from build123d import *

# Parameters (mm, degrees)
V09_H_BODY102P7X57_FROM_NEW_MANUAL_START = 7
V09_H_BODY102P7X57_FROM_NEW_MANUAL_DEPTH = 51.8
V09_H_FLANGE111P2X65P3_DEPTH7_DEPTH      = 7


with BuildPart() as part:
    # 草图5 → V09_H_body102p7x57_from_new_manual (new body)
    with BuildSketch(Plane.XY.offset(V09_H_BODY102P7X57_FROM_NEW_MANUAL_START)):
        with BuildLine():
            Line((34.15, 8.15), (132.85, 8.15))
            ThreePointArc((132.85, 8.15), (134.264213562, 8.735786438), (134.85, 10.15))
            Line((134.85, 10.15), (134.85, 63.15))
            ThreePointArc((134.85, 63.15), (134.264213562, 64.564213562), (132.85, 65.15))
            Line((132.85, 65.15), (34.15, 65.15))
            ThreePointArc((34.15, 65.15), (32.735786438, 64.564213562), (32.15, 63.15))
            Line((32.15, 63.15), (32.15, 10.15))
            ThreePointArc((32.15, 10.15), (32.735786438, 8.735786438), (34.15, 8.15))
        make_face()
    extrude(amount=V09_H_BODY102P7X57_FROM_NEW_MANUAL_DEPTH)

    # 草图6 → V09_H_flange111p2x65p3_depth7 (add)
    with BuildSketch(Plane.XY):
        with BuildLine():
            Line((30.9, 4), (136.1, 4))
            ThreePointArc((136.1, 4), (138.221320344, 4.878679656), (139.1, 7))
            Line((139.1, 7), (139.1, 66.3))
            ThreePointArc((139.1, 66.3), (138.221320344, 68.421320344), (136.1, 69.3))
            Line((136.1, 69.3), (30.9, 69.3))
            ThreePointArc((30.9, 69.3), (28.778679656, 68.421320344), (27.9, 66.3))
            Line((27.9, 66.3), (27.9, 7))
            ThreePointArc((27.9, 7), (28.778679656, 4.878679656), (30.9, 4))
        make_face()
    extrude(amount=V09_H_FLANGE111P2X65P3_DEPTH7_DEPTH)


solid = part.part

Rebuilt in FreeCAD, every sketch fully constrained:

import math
import FreeCAD as App
import Part
import Sketcher

V = App.Vector
Q = App.Units.Quantity

doc = App.newDocument("Part")
body = doc.addObject("PartDesign::Body", "Body")

sketch1 = body.newObject("Sketcher::SketchObject", "Sketch")
sketch1.AttachmentSupport = (doc.getObject("XY_Plane"), [""])
sketch1.MapMode = "FlatFace"
sketch1.AttachmentOffset = App.Placement(V(0, 0, 7), App.Rotation())
sketch1.addGeometry(Part.LineSegment(V(34.15, 8.15, 0), V(132.85, 8.15, 0)), False)
sketch1.addGeometry(Part.ArcOfCircle(Part.Circle(V(132.85, 10.15, 0), V(0, 0, 1), 2), math.radians(-90), math.radians(0)), False)
sketch1.addGeometry(Part.LineSegment(V(134.85, 10.15, 0), V(134.85, 63.15, 0)), False)
sketch1.addGeometry(Part.ArcOfCircle(Part.Circle(V(132.85, 63.15, 0), V(0, 0, 1), 2), math.radians(0), math.radians(90)), False)
sketch1.addGeometry(Part.LineSegment(V(132.85, 65.15, 0), V(34.15, 65.15, 0)), False)
sketch1.addGeometry(Part.ArcOfCircle(Part.Circle(V(34.15, 63.15, 0), V(0, 0, 1), 2), math.radians(90), math.radians(180)), False)
sketch1.addGeometry(Part.LineSegment(V(32.15, 63.15, 0), V(32.15, 10.15, 0)), False)
sketch1.addGeometry(Part.ArcOfCircle(Part.Circle(V(34.15, 10.15, 0), V(0, 0, 1), 2), math.radians(-180), math.radians(-90)), False)
sketch1.addConstraint(Sketcher.Constraint("Tangent", 0, 2, 1, 1))
sketch1.addConstraint(Sketcher.Constraint("Tangent", 1, 2, 2, 1))
sketch1.addConstraint(Sketcher.Constraint("Tangent", 2, 2, 3, 1))
sketch1.addConstraint(Sketcher.Constraint("Tangent", 3, 2, 4, 1))
sketch1.addConstraint(Sketcher.Constraint("Tangent", 4, 2, 5, 1))
sketch1.addConstraint(Sketcher.Constraint("Tangent", 5, 2, 6, 1))
sketch1.addConstraint(Sketcher.Constraint("Tangent", 6, 2, 7, 1))
sketch1.addConstraint(Sketcher.Constraint("Tangent", 7, 2, 0, 1))
sketch1.addConstraint(Sketcher.Constraint("Horizontal", 0))
sketch1.addConstraint(Sketcher.Constraint("Vertical", 2))
sketch1.addConstraint(Sketcher.Constraint("Horizontal", 4))
sketch1.addConstraint(Sketcher.Constraint("Vertical", 6))
sketch1.addConstraint(Sketcher.Constraint("Equal", 1, 3))
sketch1.addConstraint(Sketcher.Constraint("Equal", 3, 5))
sketch1.addConstraint(Sketcher.Constraint("Equal", 5, 7))
sketch1.addConstraint(Sketcher.Constraint("Radius", 1, Q("2 mm")))
sketch1.addConstraint(Sketcher.Constraint("DistanceY", 2, 1, 2, 2, Q("53 mm")))
sketch1.addConstraint(Sketcher.Constraint("DistanceX", 0, 1, 0, 2, Q("98.7 mm")))
sketch1.addConstraint(Sketcher.Constraint("DistanceX", -1, 1, 1, 3, Q("132.85 mm")))
sketch1.addConstraint(Sketcher.Constraint("DistanceY", -1, 1, 1, 3, Q("10.15 mm")))
pad1 = body.newObject("PartDesign::Pad", "Pad")
pad1.Profile = sketch1
pad1.Length = 51.8

sketch2 = body.newObject("Sketcher::SketchObject", "Sketch001")
sketch2.AttachmentSupport = (doc.getObject("XY_Plane"), [""])
sketch2.MapMode = "FlatFace"
sketch2.addGeometry(Part.LineSegment(V(30.9, 4, 0), V(136.1, 4, 0)), False)
sketch2.addGeometry(Part.ArcOfCircle(Part.Circle(V(136.1, 7, 0), V(0, 0, 1), 3), math.radians(-90), math.radians(0)), False)
sketch2.addGeometry(Part.LineSegment(V(139.1, 7, 0), V(139.1, 66.3, 0)), False)
sketch2.addGeometry(Part.ArcOfCircle(Part.Circle(V(136.1, 66.3, 0), V(0, 0, 1), 3), math.radians(0), math.radians(90)), False)
sketch2.addGeometry(Part.LineSegment(V(136.1, 69.3, 0), V(30.9, 69.3, 0)), False)
sketch2.addGeometry(Part.ArcOfCircle(Part.Circle(V(30.9, 66.3, 0), V(0, 0, 1), 3), math.radians(90), math.radians(180)), False)
sketch2.addGeometry(Part.LineSegment(V(27.9, 66.3, 0), V(27.9, 7, 0)), False)
sketch2.addGeometry(Part.ArcOfCircle(Part.Circle(V(30.9, 7, 0), V(0, 0, 1), 3), math.radians(180), math.radians(270)), False)
sketch2.addConstraint(Sketcher.Constraint("Tangent", 0, 2, 1, 1))
sketch2.addConstraint(Sketcher.Constraint("Tangent", 1, 2, 2, 1))
sketch2.addConstraint(Sketcher.Constraint("Tangent", 2, 2, 3, 1))
sketch2.addConstraint(Sketcher.Constraint("Tangent", 3, 2, 4, 1))
sketch2.addConstraint(Sketcher.Constraint("Tangent", 4, 2, 5, 1))
sketch2.addConstraint(Sketcher.Constraint("Tangent", 5, 2, 6, 1))
sketch2.addConstraint(Sketcher.Constraint("Tangent", 6, 2, 7, 1))
sketch2.addConstraint(Sketcher.Constraint("Tangent", 7, 2, 0, 1))
sketch2.addConstraint(Sketcher.Constraint("Horizontal", 0))
sketch2.addConstraint(Sketcher.Constraint("Vertical", 2))
sketch2.addConstraint(Sketcher.Constraint("Horizontal", 4))
sketch2.addConstraint(Sketcher.Constraint("Vertical", 6))
sketch2.addConstraint(Sketcher.Constraint("Equal", 1, 3))
sketch2.addConstraint(Sketcher.Constraint("Equal", 3, 5))
sketch2.addConstraint(Sketcher.Constraint("Equal", 5, 7))
sketch2.addConstraint(Sketcher.Constraint("Radius", 1, Q("3 mm")))
sketch2.addConstraint(Sketcher.Constraint("DistanceX", 0, 1, 0, 2, Q("105.2 mm")))
sketch2.addConstraint(Sketcher.Constraint("DistanceY", 2, 1, 2, 2, Q("59.3 mm")))
sketch2.addConstraint(Sketcher.Constraint("DistanceY", -1, 1, 1, 3, Q("7 mm")))
sketch2.addConstraint(Sketcher.Constraint("DistanceX", -1, 1, 1, 3, Q("136.1 mm")))
pad2 = body.newObject("PartDesign::Pad", "Pad001")
pad2.Profile = sketch2
pad2.Length = 7

doc.recompute()
